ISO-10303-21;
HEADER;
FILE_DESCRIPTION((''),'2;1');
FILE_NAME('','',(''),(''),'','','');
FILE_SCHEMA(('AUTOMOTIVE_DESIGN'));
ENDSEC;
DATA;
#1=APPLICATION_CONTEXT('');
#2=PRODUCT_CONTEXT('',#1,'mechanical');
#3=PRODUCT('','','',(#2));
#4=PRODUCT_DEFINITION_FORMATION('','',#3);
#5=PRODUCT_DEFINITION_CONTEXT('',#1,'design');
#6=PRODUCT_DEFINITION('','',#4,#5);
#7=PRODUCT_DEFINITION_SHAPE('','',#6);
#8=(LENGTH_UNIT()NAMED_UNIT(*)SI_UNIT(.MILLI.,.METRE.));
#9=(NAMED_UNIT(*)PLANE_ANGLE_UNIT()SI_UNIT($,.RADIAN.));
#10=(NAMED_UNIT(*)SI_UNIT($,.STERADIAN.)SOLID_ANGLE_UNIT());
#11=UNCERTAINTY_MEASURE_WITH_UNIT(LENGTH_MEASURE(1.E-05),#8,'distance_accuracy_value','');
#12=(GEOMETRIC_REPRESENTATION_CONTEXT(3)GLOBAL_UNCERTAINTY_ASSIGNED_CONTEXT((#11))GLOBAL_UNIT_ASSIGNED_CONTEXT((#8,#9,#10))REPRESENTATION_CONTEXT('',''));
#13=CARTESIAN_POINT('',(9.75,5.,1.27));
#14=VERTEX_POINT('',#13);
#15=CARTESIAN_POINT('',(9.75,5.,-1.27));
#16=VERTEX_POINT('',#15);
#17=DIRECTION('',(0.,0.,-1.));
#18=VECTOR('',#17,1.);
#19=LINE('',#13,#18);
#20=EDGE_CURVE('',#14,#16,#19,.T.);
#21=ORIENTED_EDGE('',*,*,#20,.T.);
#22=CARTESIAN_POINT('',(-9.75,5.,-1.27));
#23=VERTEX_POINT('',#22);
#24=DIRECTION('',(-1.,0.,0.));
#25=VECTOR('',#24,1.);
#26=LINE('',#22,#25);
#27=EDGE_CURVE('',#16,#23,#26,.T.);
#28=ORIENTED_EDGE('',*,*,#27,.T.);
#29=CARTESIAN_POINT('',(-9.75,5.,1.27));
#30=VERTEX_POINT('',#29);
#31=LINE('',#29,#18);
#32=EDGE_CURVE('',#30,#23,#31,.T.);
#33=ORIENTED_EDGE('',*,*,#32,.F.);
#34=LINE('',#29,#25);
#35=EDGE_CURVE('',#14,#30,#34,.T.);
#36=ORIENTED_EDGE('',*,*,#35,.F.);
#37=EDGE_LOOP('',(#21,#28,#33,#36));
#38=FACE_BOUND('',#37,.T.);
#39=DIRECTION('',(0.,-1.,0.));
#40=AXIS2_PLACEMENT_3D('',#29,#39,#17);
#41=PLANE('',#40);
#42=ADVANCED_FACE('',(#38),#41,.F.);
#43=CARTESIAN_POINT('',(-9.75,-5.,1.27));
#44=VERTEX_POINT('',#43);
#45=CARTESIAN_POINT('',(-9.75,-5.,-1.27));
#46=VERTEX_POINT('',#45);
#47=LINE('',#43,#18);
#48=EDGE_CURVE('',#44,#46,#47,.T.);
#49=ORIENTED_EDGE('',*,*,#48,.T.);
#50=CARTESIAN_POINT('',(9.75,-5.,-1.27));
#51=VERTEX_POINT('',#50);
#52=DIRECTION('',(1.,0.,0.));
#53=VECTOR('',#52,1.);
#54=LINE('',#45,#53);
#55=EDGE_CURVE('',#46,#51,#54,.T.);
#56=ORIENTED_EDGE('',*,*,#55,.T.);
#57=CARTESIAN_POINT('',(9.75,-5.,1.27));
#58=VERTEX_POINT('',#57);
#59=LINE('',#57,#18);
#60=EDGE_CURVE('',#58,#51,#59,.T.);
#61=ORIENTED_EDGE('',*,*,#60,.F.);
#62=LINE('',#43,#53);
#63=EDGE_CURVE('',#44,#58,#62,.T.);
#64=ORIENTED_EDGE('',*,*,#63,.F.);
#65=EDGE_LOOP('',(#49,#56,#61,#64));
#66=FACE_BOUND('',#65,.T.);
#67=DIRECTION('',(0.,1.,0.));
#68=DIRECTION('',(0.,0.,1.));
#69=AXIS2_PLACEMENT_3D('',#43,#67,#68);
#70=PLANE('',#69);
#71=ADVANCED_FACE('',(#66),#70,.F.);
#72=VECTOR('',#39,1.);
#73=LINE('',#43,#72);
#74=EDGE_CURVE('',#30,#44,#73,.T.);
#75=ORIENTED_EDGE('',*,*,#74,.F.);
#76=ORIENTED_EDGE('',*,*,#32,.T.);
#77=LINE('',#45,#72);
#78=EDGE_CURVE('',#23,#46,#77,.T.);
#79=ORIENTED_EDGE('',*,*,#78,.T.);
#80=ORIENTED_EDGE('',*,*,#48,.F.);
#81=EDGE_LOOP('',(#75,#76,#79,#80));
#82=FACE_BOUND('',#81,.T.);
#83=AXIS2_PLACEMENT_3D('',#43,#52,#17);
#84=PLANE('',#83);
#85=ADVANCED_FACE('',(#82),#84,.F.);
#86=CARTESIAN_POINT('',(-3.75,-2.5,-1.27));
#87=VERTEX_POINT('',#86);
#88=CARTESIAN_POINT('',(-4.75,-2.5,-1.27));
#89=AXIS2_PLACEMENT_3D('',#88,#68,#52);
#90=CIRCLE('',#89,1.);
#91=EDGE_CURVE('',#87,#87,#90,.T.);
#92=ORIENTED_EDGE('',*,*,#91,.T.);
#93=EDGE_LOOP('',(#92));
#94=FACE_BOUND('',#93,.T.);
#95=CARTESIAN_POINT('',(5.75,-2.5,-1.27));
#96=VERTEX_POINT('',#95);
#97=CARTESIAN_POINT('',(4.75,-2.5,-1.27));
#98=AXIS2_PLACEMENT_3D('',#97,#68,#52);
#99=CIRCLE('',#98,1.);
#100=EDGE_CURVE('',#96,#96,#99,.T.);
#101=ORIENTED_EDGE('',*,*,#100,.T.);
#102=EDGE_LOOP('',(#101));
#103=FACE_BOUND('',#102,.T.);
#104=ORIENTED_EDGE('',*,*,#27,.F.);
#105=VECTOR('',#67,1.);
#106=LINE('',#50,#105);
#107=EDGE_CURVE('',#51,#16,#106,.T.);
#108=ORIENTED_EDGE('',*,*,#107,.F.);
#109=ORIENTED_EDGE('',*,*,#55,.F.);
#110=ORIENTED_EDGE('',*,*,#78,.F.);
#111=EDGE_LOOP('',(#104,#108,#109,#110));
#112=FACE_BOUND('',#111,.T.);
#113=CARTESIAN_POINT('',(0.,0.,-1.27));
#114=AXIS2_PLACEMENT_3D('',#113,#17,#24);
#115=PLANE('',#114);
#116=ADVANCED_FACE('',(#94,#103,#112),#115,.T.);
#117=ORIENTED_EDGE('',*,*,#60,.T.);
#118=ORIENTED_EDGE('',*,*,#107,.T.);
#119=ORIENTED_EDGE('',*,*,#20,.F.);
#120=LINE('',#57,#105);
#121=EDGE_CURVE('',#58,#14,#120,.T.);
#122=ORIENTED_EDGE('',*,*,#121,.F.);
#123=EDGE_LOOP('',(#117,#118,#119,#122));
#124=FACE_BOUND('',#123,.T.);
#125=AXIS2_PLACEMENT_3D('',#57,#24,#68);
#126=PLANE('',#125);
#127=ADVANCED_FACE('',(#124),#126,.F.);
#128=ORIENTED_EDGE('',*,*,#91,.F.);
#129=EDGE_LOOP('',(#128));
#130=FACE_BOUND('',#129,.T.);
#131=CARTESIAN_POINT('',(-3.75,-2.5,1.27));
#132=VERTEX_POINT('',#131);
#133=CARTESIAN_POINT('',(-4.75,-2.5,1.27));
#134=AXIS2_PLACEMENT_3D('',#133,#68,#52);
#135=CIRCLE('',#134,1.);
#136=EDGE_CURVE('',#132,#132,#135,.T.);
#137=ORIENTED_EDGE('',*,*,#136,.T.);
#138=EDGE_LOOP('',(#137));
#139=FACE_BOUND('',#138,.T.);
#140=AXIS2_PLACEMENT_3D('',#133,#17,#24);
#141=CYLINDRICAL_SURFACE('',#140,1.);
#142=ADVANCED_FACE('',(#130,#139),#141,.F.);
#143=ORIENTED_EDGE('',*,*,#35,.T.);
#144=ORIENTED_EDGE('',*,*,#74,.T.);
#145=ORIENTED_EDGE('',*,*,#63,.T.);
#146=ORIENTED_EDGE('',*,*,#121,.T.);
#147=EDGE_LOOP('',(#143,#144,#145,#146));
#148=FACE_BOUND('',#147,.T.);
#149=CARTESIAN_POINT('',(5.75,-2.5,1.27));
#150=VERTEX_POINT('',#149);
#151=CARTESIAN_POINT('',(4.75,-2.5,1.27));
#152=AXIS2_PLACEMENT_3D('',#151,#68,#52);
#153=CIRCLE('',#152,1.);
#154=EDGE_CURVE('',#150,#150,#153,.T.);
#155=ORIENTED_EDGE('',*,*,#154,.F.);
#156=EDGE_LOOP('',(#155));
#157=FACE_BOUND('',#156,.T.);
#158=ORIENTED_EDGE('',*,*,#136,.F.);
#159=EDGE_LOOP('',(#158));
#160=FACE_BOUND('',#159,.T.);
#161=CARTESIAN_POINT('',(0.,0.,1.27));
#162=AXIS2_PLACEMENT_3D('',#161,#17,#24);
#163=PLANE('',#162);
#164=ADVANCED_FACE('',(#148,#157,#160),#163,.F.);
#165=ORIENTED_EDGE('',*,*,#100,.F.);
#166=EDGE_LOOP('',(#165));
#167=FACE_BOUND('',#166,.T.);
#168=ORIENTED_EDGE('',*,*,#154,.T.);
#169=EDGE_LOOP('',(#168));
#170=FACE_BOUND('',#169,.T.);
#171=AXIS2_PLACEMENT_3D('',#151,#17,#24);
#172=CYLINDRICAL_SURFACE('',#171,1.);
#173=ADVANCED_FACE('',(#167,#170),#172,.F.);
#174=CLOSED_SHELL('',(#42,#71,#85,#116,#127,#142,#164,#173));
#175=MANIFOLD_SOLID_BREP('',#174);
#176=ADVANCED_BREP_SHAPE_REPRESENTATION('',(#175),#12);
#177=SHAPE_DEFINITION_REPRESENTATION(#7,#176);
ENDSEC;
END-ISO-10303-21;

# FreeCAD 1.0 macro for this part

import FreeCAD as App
import Part
import Sketcher

V = App.Vector
Q = App.Units.Quantity


def add_polygon(sketch, points):
    """Adds a closed chain of lines whose ends are joined by coincident constraints."""
    first, n = sketch.GeometryCount, len(points)
    for a, b in zip(points, points[1:] + points[:1]):
        sketch.addGeometry(Part.LineSegment(App.Vector(*a, 0), App.Vector(*b, 0)), False)
    for i in range(n):
        sketch.addConstraint(Sketcher.Constraint("Coincident", first + i, 2, first + (i + 1) % n, 1))

doc = App.newDocument("Part")
body = doc.addObject("PartDesign::Body", "Body")

sketch1 = doc.addObject("Sketcher::SketchObject", "Sketch")
body.addObject(sketch1)
sketch1.AttachmentSupport = (doc.XY_Plane, [""])
sketch1.MapMode = "FlatFace"
add_polygon(sketch1, [(-9.8, 5), (-9.8, -5), (9.8, -5), (9.8, 5)])
sketch1.addGeometry(Part.Circle(V(-4.8, -2.5, 0), V(0, 0, 1), 1), False)
sketch1.addGeometry(Part.Circle(V(4.8, -2.5, 0), V(0, 0, 1), 1), False)
sketch1.addConstraint(Sketcher.Constraint("Vertical", 0))
sketch1.addConstraint(Sketcher.Constraint("Horizontal", 1))
sketch1.addConstraint(Sketcher.Constraint("Vertical", 2))
sketch1.addConstraint(Sketcher.Constraint("Horizontal", 3))
sketch1.addConstraint(Sketcher.Constraint("Equal", 4, 5))
sketch1.addConstraint(Sketcher.Constraint("Symmetric", 0, 2, 2, 2, -1, 1))
sketch1.addConstraint(Sketcher.Constraint("Symmetric", 4, 3, 5, 3, -2))
sketch1.addConstraint(Sketcher.Constraint("Diameter", 4, Q("2 mm")))
sketch1.addConstraint(Sketcher.Constraint("DistanceY", 0, 2, 0, 1, Q("10 mm")))
sketch1.addConstraint(Sketcher.Constraint("DistanceX", 1, 1, 1, 2, Q("19.5 mm")))
sketch1.addConstraint(Sketcher.Constraint("DistanceX", 0, 2, 4, 3, Q("5 mm")))
sketch1.addConstraint(Sketcher.Constraint("DistanceY", 4, 3, -1, 1, Q("2.5 mm")))
pad1 = doc.addObject("PartDesign::Pad", "Pad")
body.addObject(pad1)
pad1.Profile = sketch1
pad1.Length = 2.54
pad1.Midplane = True

doc.recompute()
